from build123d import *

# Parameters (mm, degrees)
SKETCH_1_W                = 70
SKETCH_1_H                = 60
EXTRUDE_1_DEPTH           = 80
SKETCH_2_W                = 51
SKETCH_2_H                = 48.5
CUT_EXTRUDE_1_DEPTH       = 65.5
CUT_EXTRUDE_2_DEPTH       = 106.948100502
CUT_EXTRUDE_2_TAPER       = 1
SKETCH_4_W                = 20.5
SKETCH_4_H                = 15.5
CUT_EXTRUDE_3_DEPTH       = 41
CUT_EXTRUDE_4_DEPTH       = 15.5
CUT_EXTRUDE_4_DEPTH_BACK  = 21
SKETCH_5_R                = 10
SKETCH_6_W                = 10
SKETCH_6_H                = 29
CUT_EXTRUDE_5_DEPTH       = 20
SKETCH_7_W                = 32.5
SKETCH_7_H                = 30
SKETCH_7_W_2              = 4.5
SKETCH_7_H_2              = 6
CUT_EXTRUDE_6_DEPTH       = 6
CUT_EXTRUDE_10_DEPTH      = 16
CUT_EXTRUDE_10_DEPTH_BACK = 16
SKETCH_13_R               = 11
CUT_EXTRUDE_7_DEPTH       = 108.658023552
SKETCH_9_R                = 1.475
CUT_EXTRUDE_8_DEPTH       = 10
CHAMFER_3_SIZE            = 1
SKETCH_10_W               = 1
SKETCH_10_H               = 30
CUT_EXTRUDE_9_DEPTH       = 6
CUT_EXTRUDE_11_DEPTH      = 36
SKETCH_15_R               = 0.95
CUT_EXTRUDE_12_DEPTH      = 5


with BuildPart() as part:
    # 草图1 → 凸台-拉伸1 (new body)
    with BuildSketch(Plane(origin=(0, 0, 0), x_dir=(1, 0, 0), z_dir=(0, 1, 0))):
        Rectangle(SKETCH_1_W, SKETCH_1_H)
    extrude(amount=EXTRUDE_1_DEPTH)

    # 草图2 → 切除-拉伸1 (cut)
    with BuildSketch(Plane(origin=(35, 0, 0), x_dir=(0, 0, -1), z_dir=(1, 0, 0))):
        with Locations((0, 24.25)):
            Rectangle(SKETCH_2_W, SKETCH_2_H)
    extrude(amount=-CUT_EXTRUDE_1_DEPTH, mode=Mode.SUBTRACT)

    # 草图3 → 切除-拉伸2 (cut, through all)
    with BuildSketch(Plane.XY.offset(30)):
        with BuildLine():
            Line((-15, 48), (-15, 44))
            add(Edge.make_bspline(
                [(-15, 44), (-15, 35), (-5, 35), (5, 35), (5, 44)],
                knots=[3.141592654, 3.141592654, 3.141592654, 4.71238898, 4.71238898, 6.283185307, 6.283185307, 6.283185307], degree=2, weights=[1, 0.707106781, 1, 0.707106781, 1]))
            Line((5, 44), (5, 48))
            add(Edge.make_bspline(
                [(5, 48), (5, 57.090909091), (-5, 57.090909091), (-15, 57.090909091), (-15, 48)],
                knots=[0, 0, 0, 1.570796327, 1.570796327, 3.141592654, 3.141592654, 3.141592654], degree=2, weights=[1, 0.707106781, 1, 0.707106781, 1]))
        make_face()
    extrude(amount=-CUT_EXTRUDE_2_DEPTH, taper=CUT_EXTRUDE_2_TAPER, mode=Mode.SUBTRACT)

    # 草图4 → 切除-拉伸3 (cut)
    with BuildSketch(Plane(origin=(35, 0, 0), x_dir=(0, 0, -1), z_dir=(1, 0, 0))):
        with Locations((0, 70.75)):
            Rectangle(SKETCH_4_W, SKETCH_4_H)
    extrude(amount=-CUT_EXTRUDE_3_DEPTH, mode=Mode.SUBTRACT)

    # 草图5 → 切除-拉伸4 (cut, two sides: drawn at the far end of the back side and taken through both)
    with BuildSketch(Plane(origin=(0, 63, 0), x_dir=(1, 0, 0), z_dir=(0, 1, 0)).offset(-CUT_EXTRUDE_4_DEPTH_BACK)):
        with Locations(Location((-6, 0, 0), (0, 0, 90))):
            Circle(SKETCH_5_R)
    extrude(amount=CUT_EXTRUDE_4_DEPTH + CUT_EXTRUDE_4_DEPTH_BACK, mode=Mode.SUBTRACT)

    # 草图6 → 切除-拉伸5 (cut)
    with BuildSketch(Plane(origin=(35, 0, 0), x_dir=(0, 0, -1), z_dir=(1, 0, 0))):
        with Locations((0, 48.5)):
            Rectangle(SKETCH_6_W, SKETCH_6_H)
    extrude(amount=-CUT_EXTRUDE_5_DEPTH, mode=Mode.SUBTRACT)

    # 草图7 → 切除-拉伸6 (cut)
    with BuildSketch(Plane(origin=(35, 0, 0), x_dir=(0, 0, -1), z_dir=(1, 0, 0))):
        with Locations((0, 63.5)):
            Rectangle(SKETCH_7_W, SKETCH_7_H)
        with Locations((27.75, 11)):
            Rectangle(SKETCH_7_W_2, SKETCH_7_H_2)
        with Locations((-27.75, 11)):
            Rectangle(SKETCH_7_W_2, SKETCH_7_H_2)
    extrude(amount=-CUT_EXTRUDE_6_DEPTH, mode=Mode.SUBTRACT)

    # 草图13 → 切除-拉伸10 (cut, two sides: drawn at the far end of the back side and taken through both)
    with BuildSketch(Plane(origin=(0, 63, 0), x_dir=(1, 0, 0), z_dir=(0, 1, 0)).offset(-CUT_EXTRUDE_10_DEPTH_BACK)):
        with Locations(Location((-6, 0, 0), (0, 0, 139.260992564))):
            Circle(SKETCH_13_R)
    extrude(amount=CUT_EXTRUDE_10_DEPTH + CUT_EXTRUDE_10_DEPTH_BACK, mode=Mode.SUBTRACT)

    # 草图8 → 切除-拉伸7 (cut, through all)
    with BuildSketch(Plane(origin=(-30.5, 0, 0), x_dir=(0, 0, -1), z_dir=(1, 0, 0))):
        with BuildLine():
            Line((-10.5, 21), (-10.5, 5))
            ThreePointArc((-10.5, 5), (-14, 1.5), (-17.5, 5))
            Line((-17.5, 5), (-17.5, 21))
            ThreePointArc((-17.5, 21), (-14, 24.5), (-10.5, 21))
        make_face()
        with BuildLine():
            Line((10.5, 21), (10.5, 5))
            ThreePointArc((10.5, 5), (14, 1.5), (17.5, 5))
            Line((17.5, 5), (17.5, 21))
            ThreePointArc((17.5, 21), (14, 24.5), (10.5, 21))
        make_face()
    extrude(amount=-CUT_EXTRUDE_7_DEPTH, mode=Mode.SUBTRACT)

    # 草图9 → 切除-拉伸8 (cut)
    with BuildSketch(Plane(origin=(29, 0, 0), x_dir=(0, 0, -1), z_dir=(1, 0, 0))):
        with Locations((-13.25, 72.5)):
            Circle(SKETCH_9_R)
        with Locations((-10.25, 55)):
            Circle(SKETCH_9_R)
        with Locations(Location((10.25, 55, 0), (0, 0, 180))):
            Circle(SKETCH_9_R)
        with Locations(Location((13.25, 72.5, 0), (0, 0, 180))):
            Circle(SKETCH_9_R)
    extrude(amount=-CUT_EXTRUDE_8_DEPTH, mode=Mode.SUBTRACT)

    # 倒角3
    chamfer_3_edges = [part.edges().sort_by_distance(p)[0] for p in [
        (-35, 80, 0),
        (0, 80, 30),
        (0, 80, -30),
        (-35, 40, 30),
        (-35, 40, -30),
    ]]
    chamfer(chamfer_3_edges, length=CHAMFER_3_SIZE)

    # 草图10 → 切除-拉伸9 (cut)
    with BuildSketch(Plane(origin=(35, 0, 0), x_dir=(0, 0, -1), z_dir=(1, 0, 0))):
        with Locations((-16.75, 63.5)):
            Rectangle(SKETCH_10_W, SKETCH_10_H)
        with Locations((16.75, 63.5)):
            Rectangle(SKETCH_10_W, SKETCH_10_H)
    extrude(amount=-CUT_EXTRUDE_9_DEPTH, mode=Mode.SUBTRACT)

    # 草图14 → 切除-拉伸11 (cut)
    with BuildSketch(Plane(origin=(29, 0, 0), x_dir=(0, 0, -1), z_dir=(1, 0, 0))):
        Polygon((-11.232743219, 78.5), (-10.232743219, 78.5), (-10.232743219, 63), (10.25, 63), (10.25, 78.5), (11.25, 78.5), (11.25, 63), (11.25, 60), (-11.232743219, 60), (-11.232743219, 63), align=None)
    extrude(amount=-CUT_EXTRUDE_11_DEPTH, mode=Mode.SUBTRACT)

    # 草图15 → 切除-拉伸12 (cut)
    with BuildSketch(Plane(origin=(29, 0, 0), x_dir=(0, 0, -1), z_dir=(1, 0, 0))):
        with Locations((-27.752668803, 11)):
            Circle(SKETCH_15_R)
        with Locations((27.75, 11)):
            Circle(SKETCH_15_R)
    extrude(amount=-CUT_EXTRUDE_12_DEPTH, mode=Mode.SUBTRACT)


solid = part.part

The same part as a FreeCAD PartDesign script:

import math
import FreeCAD as App
import Part
import Sketcher

V = App.Vector
Q = App.Units.Quantity


def edges_at(feature, points):
    """Names of the edges that pass closest to the given points."""
    edges = feature.Shape.Edges
    near = lambda p: min(range(len(edges)), key=lambda i: edges[i].distToShape(Part.Vertex(*p))[0])
    return sorted({f"Edge{near(p) + 1}" for p in points})


def add_polygon(sketch, points):
    """Adds a closed chain of lines whose ends are joined by coincident constraints."""
    first, n = sketch.GeometryCount, len(points)
    for a, b in zip(points, points[1:] + points[:1]):
        sketch.addGeometry(Part.LineSegment(App.Vector(*a, 0), App.Vector(*b, 0)), False)
    for i in range(n):
        sketch.addConstraint(Sketcher.Constraint("Coincident", first + i, 2, first + (i + 1) % n, 1))

doc = App.newDocument("Part")
params = doc.addObject("Spreadsheet::Sheet", "Params")
for row, (alias, value) in enumerate([
    ("sketch1_width", "70 mm"),
    ("sketch1_height", "60 mm"),
    ("pad1_length", "80 mm"),
    ("sketch2_height", "51 mm"),
    ("sketch2_width", "48.5 mm"),
    ("pocket1_length", "65.5 mm"),
    ("pocket2_length", "106.948101 mm"),
    ("pocket2_taper", "-1 deg"),
    ("sketch4_width", "15.5 mm"),
    ("sketch4_height", "20.5 mm"),
    ("pocket3_length", "41 mm"),
    ("sketch5_diameter", "20 mm"),
    ("pocket4_length", "15.5 mm"),
    ("pocket4_length2", "21 mm"),
    ("sketch6_width", "29 mm"),
    ("sketch6_height", "10 mm"),
    ("pocket5_length", "20 mm"),
    ("sketch7_width", "30 mm"),
    ("sketch7_width2", "6 mm"),
    ("sketch7_height", "32.5 mm"),
    ("sketch7_height2", "4.5 mm"),
    ("pocket6_length", "6 mm"),
    ("sketch8_diameter", "22 mm"),
    ("pocket7_length", "16 mm"),
    ("pocket7_length2", "16 mm"),
    ("sketch9_radius", "3.5 mm"),
    ("sketch9_width", "16 mm"),
    ("sketch10_diameter", "2.95 mm"),
    ("pocket9_length", "10 mm"),
    ("chamfer_size", "1 mm"),
    ("sketch11_width", "30 mm"),
    ("sketch11_height", "1 mm"),
    ("pocket10_length", "6 mm"),
    ("sketch12_height", "1 mm"),
    ("sketch12_width", "18.5 mm"),
    ("sketch12_width2", "15.5 mm"),
    ("pocket11_length", "36 mm"),
    ("sketch13_diameter", "1.9 mm"),
    ("pocket12_length", "5 mm"),
], start=1):
    params.set(f"A{row}", alias)
    params.set(f"B{row}", "=" + value)
    params.setAlias(f"B{row}", alias)

body = doc.addObject("PartDesign::Body", "Body")

sketch1 = body.newObject("Sketcher::SketchObject", "Sketch")
sketch1.AttachmentSupport = (doc.getObject("XZ_Plane"), [""])
sketch1.MapMode = "FlatFace"
add_polygon(sketch1, [(-35, -30), (-35, 30), (35, 30), (35, -30)])
sketch1.addConstraint([
    Sketcher.Constraint("Vertical", 0),
    Sketcher.Constraint("Horizontal", 1),
    Sketcher.Constraint("Vertical", 2),
    Sketcher.Constraint("Horizontal", 3),
    Sketcher.Constraint("Symmetric", 0, 2, 2, 2, -1, 1),
    Sketcher.Constraint("DistanceX", 1, 1, 1, 2, Q("70 mm")),
    Sketcher.Constraint("DistanceY", 0, 1, 0, 2, Q("60 mm")),
])
sketch1.setExpression("Constraints[9]", "Params.sketch1_width")
sketch1.setExpression("Constraints[10]", "Params.sketch1_height")
pad1 = body.newObject("PartDesign::Pad", "Pad")
pad1.Profile = sketch1
pad1.setExpression("Length", "Params.pad1_length")
pad1.Reversed = True

sketch2 = body.newObject("Sketcher::SketchObject", "Sketch001")
sketch2.AttachmentSupport = (doc.getObject("YZ_Plane"), [""])
sketch2.MapMode = "FlatFace"
sketch2.AttachmentOffset = App.Placement(V(0, 0, 35), App.Rotation())
add_polygon(sketch2, [(48, 26), (0, 26), (0, -26), (48, -26)])
sketch2.addConstraint([
    Sketcher.Constraint("Horizontal", 0),
    Sketcher.Constraint("Vertical", 1),
    Sketcher.Constraint("Horizontal", 2),
    Sketcher.Constraint("Vertical", 3),
    Sketcher.Constraint("Symmetric", 0, 2, 1, 2, -1, 1),
    Sketcher.Constraint("DistanceY", 1, 2, 1, 1, Q("51 mm")),
    Sketcher.Constraint("DistanceX", 0, 2, 0, 1, Q("48.5 mm")),
])
sketch2.setExpression("Constraints[9]", "Params.sketch2_height")
sketch2.setExpression("Constraints[10]", "Params.sketch2_width")
pocket1 = body.newObject("PartDesign::Pocket", "Pocket")
pocket1.Profile = sketch2
pocket1.setExpression("Length", "Params.pocket1_length")

sketch3 = body.newObject("Sketcher::SketchObject", "Sketch002")
sketch3.AttachmentSupport = (doc.getObject("XY_Plane"), [""])
sketch3.MapMode = "FlatFace"
sketch3.AttachmentOffset = App.Placement(V(0, 0, 30), App.Rotation())
sketch3.addGeometry([
    Part.LineSegment(V(-15, 48, 0), V(-15, 44, 0)),
    Part.BSplineCurve([V(-15, 44, 0), V(-15, 35, 0), V(-5, 35, 0), V(5, 35, 0), V(5, 44, 0)], [3, 2, 3], [3.141592654, 4.71238898, 6.283185307], False, 2, [1, 0.707106781, 1, 0.707106781, 1], False),
    Part.LineSegment(V(5, 44, 0), V(5, 48, 0)),
    Part.BSplineCurve([V(5, 48, 0), V(5, 57.090909, 0), V(-5, 57.090909, 0), V(-15, 57.090909, 0), V(-15, 48, 0)], [3, 2, 3], [0, 1.570796327, 3.141592654], False, 2, [1, 0.707106781, 1, 0.707106781, 1], False),
], False)
sketch3.addConstraint([
    Sketcher.Constraint("Block", 1),
    Sketcher.Constraint("Block", 3),
    Sketcher.Constraint("Coincident", 0, 2, 1, 1),
    Sketcher.Constraint("Coincident", 1, 2, 2, 1),
    Sketcher.Constraint("Coincident", 2, 2, 3, 1),
    Sketcher.Constraint("Coincident", 3, 2, 0, 1),
])
pocket2 = body.newObject("PartDesign::Pocket", "Pocket001")
pocket2.Profile = sketch3
pocket2.setExpression("Length", "Params.pocket2_length")
pocket2.setExpression("TaperAngle", "Params.pocket2_taper")

sketch4 = body.newObject("Sketcher::SketchObject", "Sketch003")
sketch4.AttachmentSupport = (doc.getObject("YZ_Plane"), [""])
sketch4.MapMode = "FlatFace"
sketch4.AttachmentOffset = App.Placement(V(0, 0, 35), App.Rotation())
add_polygon(sketch4, [(78, 10), (63, 10), (63, -10), (78, -10)])
sketch4.addConstraint([
    Sketcher.Constraint("Horizontal", 0),
    Sketcher.Constraint("Vertical", 1),
    Sketcher.Constraint("Horizontal", 2),
    Sketcher.Constraint("Vertical", 3),
    Sketcher.Constraint("DistanceX", 0, 2, 0, 1, Q("15.5 mm")),
    Sketcher.Constraint("DistanceY", 1, 2, 1, 1, Q("20.5 mm")),
    Sketcher.Constraint("DistanceX", -1, 1, 0, 2, Q("63 mm")),
    Sketcher.Constraint("DistanceY", -1, 1, 0, 2, Q("10.25 mm")),
])
sketch4.setExpression("Constraints[8]", "Params.sketch4_width")
sketch4.setExpression("Constraints[9]", "Params.sketch4_height")
pocket3 = body.newObject("PartDesign::Pocket", "Pocket002")
pocket3.Profile = sketch4
pocket3.setExpression("Length", "Params.pocket3_length")

sketch5 = body.newObject("Sketcher::SketchObject", "Sketch004")
sketch5.AttachmentSupport = (doc.getObject("XZ_Plane"), [""])
sketch5.MapMode = "FlatFace"
sketch5.AttachmentOffset = App.Placement(V(0, 0, -63), App.Rotation())
sketch5.addGeometry(Part.Circle(V(-6, 0, 0), V(0, 0, 1), 10), False)
sketch5.addConstraint([
    Sketcher.Constraint("PointOnObject", 0, 3, -1),
    Sketcher.Constraint("Diameter", 0, Q("20 mm")),
    Sketcher.Constraint("DistanceX", 0, 3, -1, 1, Q("6 mm")),
])
sketch5.setExpression("Constraints[1]", "Params.sketch5_diameter")
pocket4 = body.newObject("PartDesign::Pocket", "Pocket003")
pocket4.Profile = sketch5
pocket4.Type = "TwoLengths"
pocket4.setExpression("Length", "Params.pocket4_length")
pocket4.setExpression("Length2", "Params.pocket4_length2")

sketch6 = body.newObject("Sketcher::SketchObject", "Sketch005")
sketch6.AttachmentSupport = (doc.getObject("YZ_Plane"), [""])
sketch6.MapMode = "FlatFace"
sketch6.AttachmentOffset = App.Placement(V(0, 0, 35), App.Rotation())
add_polygon(sketch6, [(63, 5), (34, 5), (34, -5), (63, -5)])
sketch6.addConstraint([
    Sketcher.Constraint("Horizontal", 0),
    Sketcher.Constraint("Vertical", 1),
    Sketcher.Constraint("Horizontal", 2),
    Sketcher.Constraint("Vertical", 3),
    Sketcher.Constraint("DistanceX", 0, 2, 0, 1, Q("29 mm")),
    Sketcher.Constraint("DistanceY", 1, 2, 1, 1, Q("10 mm")),
    Sketcher.Constraint("DistanceX", -1, 1, 0, 2, Q("34 mm")),
    Sketcher.Constraint("DistanceY", -1, 1, 0, 2, Q("5 mm")),
])
sketch6.setExpression("Constraints[8]", "Params.sketch6_width")
sketch6.setExpression("Constraints[9]", "Params.sketch6_height")
pocket5 = body.newObject("PartDesign::Pocket", "Pocket004")
pocket5.Profile = sketch6
pocket5.setExpression("Length", "Params.pocket5_length")

sketch7 = body.newObject("Sketcher::SketchObject", "Sketch006")
sketch7.AttachmentSupport = (doc.getObject("YZ_Plane"), [""])
sketch7.MapMode = "FlatFace"
sketch7.AttachmentOffset = App.Placement(V(0, 0, 35), App.Rotation())
add_polygon(sketch7, [(78.5, 16.2), (48.5, 16.2), (48.5, -16.2), (78.5, -16.2)])
add_polygon(sketch7, [(14, -25.5), (8, -25.5), (8, -30), (14, -30)])
add_polygon(sketch7, [(14, 30), (8, 30), (8, 25.5), (14, 25.5)])
sketch7.addConstraint([
    Sketcher.Constraint("Horizontal", 0),
    Sketcher.Constraint("Vertical", 1),
    Sketcher.Constraint("Horizontal", 2),
    Sketcher.Constraint("Vertical", 3),
    Sketcher.Constraint("Horizontal", 4),
    Sketcher.Constraint("Vertical", 5),
    Sketcher.Constraint("Horizontal", 6),
    Sketcher.Constraint("Vertical", 7),
    Sketcher.Constraint("Horizontal", 8),
    Sketcher.Constraint("Vertical", 9),
    Sketcher.Constraint("Horizontal", 10),
    Sketcher.Constraint("Vertical", 11),
    Sketcher.Constraint("Symmetric", 5, 2, 8, 2, -1),
    Sketcher.Constraint("Symmetric", 7, 2, 10, 2, -1),
    Sketcher.Constraint("DistanceX", 0, 2, 0, 1, Q("30 mm")),
    Sketcher.Constraint("DistanceX", 4, 2, 4, 1, Q("6 mm")),
    Sketcher.Constraint("DistanceY", 1, 2, 1, 1, Q("32.5 mm")),
    Sketcher.Constraint("DistanceY", 5, 2, 5, 1, Q("4.5 mm")),
    Sketcher.Constraint("DistanceX", -1, 1, 4, 2, Q("8 mm")),
    Sketcher.Constraint("DistanceY", 5, 2, -1, 1, Q("30 mm")),
    Sketcher.Constraint("DistanceX", -1, 1, 0, 2, Q("48.5 mm")),
    Sketcher.Constraint("DistanceY", -1, 1, 0, 2, Q("16.25 mm")),
])
sketch7.setExpression("Constraints[26]", "Params.sketch7_width")
sketch7.setExpression("Constraints[27]", "Params.sketch7_width2")
sketch7.setExpression("Constraints[28]", "Params.sketch7_height")
sketch7.setExpression("Constraints[29]", "Params.sketch7_height2")
pocket6 = body.newObject("PartDesign::Pocket", "Pocket005")
pocket6.Profile = sketch7
pocket6.setExpression("Length", "Params.pocket6_length")

sketch8 = body.newObject("Sketcher::SketchObject", "Sketch007")
sketch8.AttachmentSupport = (doc.getObject("XZ_Plane"), [""])
sketch8.MapMode = "FlatFace"
sketch8.AttachmentOffset = App.Placement(V(0, 0, -63), App.Rotation())
sketch8.addGeometry(Part.Circle(V(-6, 0, 0), V(0, 0, 1), 11), False)
sketch8.addConstraint([
    Sketcher.Constraint("PointOnObject", 0, 3, -1),
    Sketcher.Constraint("Diameter", 0, Q("22 mm")),
    Sketcher.Constraint("DistanceX", 0, 3, -1, 1, Q("6 mm")),
])
sketch8.setExpression("Constraints[1]", "Params.sketch8_diameter")
pocket7 = body.newObject("PartDesign::Pocket", "Pocket006")
pocket7.Profile = sketch8
pocket7.Type = "TwoLengths"
pocket7.setExpression("Length", "Params.pocket7_length")
pocket7.setExpression("Length2", "Params.pocket7_length2")

sketch9 = body.newObject("Sketcher::SketchObject", "Sketch008")
sketch9.AttachmentSupport = (doc.getObject("YZ_Plane"), [""])
sketch9.MapMode = "FlatFace"
sketch9.AttachmentOffset = App.Placement(V(0, 0, -30.5), App.Rotation())
sketch9.addGeometry([
    Part.LineSegment(V(5, 10.5, 0), V(21, 10.5, 0)),
    Part.ArcOfCircle(Part.Circle(V(21, 14, 0), V(0, 0, 1), 3.5), math.radians(-90), math.radians(90)),
    Part.LineSegment(V(21, 17.5, 0), V(5, 17.5, 0)),
    Part.ArcOfCircle(Part.Circle(V(5, 14, 0), V(0, 0, 1), 3.5), math.radians(90), math.radians(270)),
    Part.LineSegment(V(21, -10.5, 0), V(5, -10.5, 0)),
    Part.ArcOfCircle(Part.Circle(V(5, -14, 0), V(0, 0, 1), 3.5), math.radians(90), math.radians(270)),
    Part.LineSegment(V(5, -17.5, 0), V(21, -17.5, 0)),
    Part.ArcOfCircle(Part.Circle(V(21, -14, 0), V(0, 0, 1), 3.5), math.radians(-90), math.radians(90)),
], False)
sketch9.addConstraint([
    Sketcher.Constraint("Tangent", 0, 2, 1, 1),
    Sketcher.Constraint("Tangent", 1, 2, 2, 1),
    Sketcher.Constraint("Tangent", 2, 2, 3, 1),
    Sketcher.Constraint("Tangent", 3, 2, 0, 1),
    Sketcher.Constraint("Tangent", 4, 2, 5, 1),
    Sketcher.Constraint("Tangent", 5, 2, 6, 1),
    Sketcher.Constraint("Tangent", 6, 2, 7, 1),
    Sketcher.Constraint("Tangent", 7, 2, 4, 1),
    Sketcher.Constraint("Horizontal", 0),
    Sketcher.Constraint("Horizontal", 2),
    Sketcher.Constraint("Horizontal", 4),
    Sketcher.Constraint("Horizontal", 6),
    Sketcher.Constraint("Equal", 3, 5),
    Sketcher.Constraint("Symmetric", 3, 3, 5, 3, -1),
    Sketcher.Constraint("Vertical", 1, 3, 7, 3),
    Sketcher.Constraint("Radius", 1, Q("3.5 mm")),
    Sketcher.Constraint("DistanceX", 0, 1, 0, 2, Q("16 mm")),
    Sketcher.Constraint("DistanceX", -1, 1, 1, 3, Q("21 mm")),
    Sketcher.Constraint("DistanceY", -1, 1, 1, 3, Q("14 mm")),
])
sketch9.setExpression("Constraints[15]", "Params.sketch9_radius")
sketch9.setExpression("Constraints[16]", "Params.sketch9_width")
pocket8 = body.newObject("PartDesign::Pocket", "Pocket007")
pocket8.Profile = sketch9
pocket8.Type = "ThroughAll"

sketch10 = body.newObject("Sketcher::SketchObject", "Sketch009")
sketch10.AttachmentSupport = (doc.getObject("YZ_Plane"), [""])
sketch10.MapMode = "FlatFace"
sketch10.AttachmentOffset = App.Placement(V(0, 0, 29), App.Rotation())
sketch10.addGeometry([
    Part.Circle(V(72.5, 13.2, 0), V(0, 0, 1), 1.5),
    Part.Circle(V(55, 10.2, 0), V(0, 0, 1), 1.5),
    Part.Circle(V(55, -10.2, 0), V(0, 0, 1), 1.5),
    Part.Circle(V(72.5, -13.2, 0), V(0, 0, 1), 1.5),
], False)
sketch10.addConstraint([
    Sketcher.Constraint("Equal", 0, 1),
    Sketcher.Constraint("Equal", 1, 2),
    Sketcher.Constraint("Equal", 2, 3),
    Sketcher.Constraint("Symmetric", 1, 3, 2, 3, -1),
    Sketcher.Constraint("Symmetric", 0, 3, 3, 3, -1),
    Sketcher.Constraint("Diameter", 0, Q("2.95 mm")),
    Sketcher.Constraint("DistanceX", -1, 1, 1, 3, Q("55 mm")),
    Sketcher.Constraint("DistanceY", 1, 3, 0, 3, Q("3 mm")),
    Sketcher.Constraint("DistanceX", -1, 1, 0, 3, Q("72.5 mm")),
    Sketcher.Constraint("DistanceY", 2, 3, 1, 3, Q("20.5 mm")),
])
sketch10.setExpression("Constraints[5]", "Params.sketch10_diameter")
pocket9 = body.newObject("PartDesign::Pocket", "Pocket008")
pocket9.Profile = sketch10
pocket9.setExpression("Length", "Params.pocket9_length")
doc.recompute()

chamfer = body.newObject("PartDesign::Chamfer", "Chamfer")
chamfer.Base = (pocket9, edges_at(pocket9, [
    (-35, 80, 0),
    (0, 80, 30),
    (0, 80, -30),
    (-35, 40, 30),
    (-35, 40, -30),
]))
chamfer.setExpression("Size", "Params.chamfer_size")

sketch11 = body.newObject("Sketcher::SketchObject", "Sketch010")
sketch11.AttachmentSupport = (doc.getObject("YZ_Plane"), [""])
sketch11.MapMode = "FlatFace"
sketch11.AttachmentOffset = App.Placement(V(0, 0, 35), App.Rotation())
add_polygon(sketch11, [(78.5, 17.2), (48.5, 17.2), (48.5, 16.2), (78.5, 16.2)])
add_polygon(sketch11, [(78.5, -16.2), (48.5, -16.2), (48.5, -17.2), (78.5, -17.2)])
sketch11.addConstraint([
    Sketcher.Constraint("Horizontal", 0),
    Sketcher.Constraint("Vertical", 1),
    Sketcher.Constraint("Horizontal", 2),
    Sketcher.Constraint("Vertical", 3),
    Sketcher.Constraint("Horizontal", 4),
    Sketcher.Constraint("Vertical", 5),
    Sketcher.Constraint("Horizontal", 6),
    Sketcher.Constraint("Vertical", 7),
    Sketcher.Constraint("Symmetric", 1, 2, 4, 2, -1),
    Sketcher.Constraint("Symmetric", 3, 2, 6, 2, -1),
    Sketcher.Constraint("DistanceX", 0, 2, 0, 1, Q("30 mm")),
    Sketcher.Constraint("DistanceY", 1, 2, 1, 1, Q("1 mm")),
    Sketcher.Constraint("DistanceX", -1, 1, 0, 2, Q("48.5 mm")),
    Sketcher.Constraint("DistanceY", 4, 2, 1, 2, Q("32.5 mm")),
])
sketch11.setExpression("Constraints[18]", "Params.sketch11_width")
sketch11.setExpression("Constraints[19]", "Params.sketch11_height")
pocket10 = body.newObject("PartDesign::Pocket", "Pocket009")
pocket10.Profile = sketch11
pocket10.setExpression("Length", "Params.pocket10_length")

sketch12 = body.newObject("Sketcher::SketchObject", "Sketch011")
sketch12.AttachmentSupport = (doc.getObject("YZ_Plane"), [""])
sketch12.MapMode = "FlatFace"
sketch12.AttachmentOffset = App.Placement(V(0, 0, 29), App.Rotation())
add_polygon(sketch12, [(78.5, 10.2), (78.5, 11.2), (60, 11.2), (60, -11.2), (78.5, -11.2), (78.5, -10.2), (63, -10.2), (63, 10.2)])
sketch12.addConstraint([
    Sketcher.Constraint("Vertical", 0),
    Sketcher.Constraint("Horizontal", 1),
    Sketcher.Constraint("Vertical", 2),
    Sketcher.Constraint("Horizontal", 3),
    Sketcher.Constraint("Vertical", 4),
    Sketcher.Constraint("Horizontal", 5),
    Sketcher.Constraint("Vertical", 6),
    Sketcher.Constraint("Horizontal", 7),
    Sketcher.Constraint("Vertical", 0, 2, 3, 2),
    Sketcher.Constraint("Equal", 0, 4),
    Sketcher.Constraint("DistanceY", 0, 1, 0, 2, Q("1 mm")),
    Sketcher.Constraint("DistanceX", 1, 2, 1, 1, Q("18.5 mm")),
    Sketcher.Constraint("DistanceX", 5, 2, 5, 1, Q("15.5 mm")),
    Sketcher.Constraint("DistanceX", -1, 1, 1, 2, Q("60 mm")),
    Sketcher.Constraint("DistanceY", 2, 2, -1, 1, Q("11.25 mm")),
    Sketcher.Constraint("DistanceY", 2, 2, 2, 1, Q("22.482743 mm")),
])
sketch12.setExpression("Constraints[18]", "Params.sketch12_height")
sketch12.setExpression("Constraints[19]", "Params.sketch12_width")
sketch12.setExpression("Constraints[20]", "Params.sketch12_width2")
pocket11 = body.newObject("PartDesign::Pocket", "Pocket010")
pocket11.Profile = sketch12
pocket11.setExpression("Length", "Params.pocket11_length")

sketch13 = body.newObject("Sketcher::SketchObject", "Sketch012")
sketch13.AttachmentSupport = (doc.getObject("YZ_Plane"), [""])
sketch13.MapMode = "FlatFace"
sketch13.AttachmentOffset = App.Placement(V(0, 0, 29), App.Rotation())
sketch13.addGeometry([
    Part.Circle(V(11, 27.8, 0), V(0, 0, 1), 0.9),
    Part.Circle(V(11, -27.8, 0), V(0, 0, 1), 0.9),
], False)
sketch13.addConstraint([
    Sketcher.Constraint("Equal", 0, 1),
    Sketcher.Constraint("Vertical", 0, 3, 1, 3),
    Sketcher.Constraint("Diameter", 0, Q("1.9 mm")),
    Sketcher.Constraint("DistanceX", -1, 1, 0, 3, Q("11 mm")),
    Sketcher.Constraint("DistanceY", 1, 3, -1, 1, Q("27.75 mm")),
    Sketcher.Constraint("DistanceY", -1, 1, 0, 3, Q("27.752669 mm")),
])
sketch13.setExpression("Constraints[2]", "Params.sketch13_diameter")
pocket12 = body.newObject("PartDesign::Pocket", "Pocket011")
pocket12.Profile = sketch13
pocket12.setExpression("Length", "Params.pocket12_length")

doc.recompute()
